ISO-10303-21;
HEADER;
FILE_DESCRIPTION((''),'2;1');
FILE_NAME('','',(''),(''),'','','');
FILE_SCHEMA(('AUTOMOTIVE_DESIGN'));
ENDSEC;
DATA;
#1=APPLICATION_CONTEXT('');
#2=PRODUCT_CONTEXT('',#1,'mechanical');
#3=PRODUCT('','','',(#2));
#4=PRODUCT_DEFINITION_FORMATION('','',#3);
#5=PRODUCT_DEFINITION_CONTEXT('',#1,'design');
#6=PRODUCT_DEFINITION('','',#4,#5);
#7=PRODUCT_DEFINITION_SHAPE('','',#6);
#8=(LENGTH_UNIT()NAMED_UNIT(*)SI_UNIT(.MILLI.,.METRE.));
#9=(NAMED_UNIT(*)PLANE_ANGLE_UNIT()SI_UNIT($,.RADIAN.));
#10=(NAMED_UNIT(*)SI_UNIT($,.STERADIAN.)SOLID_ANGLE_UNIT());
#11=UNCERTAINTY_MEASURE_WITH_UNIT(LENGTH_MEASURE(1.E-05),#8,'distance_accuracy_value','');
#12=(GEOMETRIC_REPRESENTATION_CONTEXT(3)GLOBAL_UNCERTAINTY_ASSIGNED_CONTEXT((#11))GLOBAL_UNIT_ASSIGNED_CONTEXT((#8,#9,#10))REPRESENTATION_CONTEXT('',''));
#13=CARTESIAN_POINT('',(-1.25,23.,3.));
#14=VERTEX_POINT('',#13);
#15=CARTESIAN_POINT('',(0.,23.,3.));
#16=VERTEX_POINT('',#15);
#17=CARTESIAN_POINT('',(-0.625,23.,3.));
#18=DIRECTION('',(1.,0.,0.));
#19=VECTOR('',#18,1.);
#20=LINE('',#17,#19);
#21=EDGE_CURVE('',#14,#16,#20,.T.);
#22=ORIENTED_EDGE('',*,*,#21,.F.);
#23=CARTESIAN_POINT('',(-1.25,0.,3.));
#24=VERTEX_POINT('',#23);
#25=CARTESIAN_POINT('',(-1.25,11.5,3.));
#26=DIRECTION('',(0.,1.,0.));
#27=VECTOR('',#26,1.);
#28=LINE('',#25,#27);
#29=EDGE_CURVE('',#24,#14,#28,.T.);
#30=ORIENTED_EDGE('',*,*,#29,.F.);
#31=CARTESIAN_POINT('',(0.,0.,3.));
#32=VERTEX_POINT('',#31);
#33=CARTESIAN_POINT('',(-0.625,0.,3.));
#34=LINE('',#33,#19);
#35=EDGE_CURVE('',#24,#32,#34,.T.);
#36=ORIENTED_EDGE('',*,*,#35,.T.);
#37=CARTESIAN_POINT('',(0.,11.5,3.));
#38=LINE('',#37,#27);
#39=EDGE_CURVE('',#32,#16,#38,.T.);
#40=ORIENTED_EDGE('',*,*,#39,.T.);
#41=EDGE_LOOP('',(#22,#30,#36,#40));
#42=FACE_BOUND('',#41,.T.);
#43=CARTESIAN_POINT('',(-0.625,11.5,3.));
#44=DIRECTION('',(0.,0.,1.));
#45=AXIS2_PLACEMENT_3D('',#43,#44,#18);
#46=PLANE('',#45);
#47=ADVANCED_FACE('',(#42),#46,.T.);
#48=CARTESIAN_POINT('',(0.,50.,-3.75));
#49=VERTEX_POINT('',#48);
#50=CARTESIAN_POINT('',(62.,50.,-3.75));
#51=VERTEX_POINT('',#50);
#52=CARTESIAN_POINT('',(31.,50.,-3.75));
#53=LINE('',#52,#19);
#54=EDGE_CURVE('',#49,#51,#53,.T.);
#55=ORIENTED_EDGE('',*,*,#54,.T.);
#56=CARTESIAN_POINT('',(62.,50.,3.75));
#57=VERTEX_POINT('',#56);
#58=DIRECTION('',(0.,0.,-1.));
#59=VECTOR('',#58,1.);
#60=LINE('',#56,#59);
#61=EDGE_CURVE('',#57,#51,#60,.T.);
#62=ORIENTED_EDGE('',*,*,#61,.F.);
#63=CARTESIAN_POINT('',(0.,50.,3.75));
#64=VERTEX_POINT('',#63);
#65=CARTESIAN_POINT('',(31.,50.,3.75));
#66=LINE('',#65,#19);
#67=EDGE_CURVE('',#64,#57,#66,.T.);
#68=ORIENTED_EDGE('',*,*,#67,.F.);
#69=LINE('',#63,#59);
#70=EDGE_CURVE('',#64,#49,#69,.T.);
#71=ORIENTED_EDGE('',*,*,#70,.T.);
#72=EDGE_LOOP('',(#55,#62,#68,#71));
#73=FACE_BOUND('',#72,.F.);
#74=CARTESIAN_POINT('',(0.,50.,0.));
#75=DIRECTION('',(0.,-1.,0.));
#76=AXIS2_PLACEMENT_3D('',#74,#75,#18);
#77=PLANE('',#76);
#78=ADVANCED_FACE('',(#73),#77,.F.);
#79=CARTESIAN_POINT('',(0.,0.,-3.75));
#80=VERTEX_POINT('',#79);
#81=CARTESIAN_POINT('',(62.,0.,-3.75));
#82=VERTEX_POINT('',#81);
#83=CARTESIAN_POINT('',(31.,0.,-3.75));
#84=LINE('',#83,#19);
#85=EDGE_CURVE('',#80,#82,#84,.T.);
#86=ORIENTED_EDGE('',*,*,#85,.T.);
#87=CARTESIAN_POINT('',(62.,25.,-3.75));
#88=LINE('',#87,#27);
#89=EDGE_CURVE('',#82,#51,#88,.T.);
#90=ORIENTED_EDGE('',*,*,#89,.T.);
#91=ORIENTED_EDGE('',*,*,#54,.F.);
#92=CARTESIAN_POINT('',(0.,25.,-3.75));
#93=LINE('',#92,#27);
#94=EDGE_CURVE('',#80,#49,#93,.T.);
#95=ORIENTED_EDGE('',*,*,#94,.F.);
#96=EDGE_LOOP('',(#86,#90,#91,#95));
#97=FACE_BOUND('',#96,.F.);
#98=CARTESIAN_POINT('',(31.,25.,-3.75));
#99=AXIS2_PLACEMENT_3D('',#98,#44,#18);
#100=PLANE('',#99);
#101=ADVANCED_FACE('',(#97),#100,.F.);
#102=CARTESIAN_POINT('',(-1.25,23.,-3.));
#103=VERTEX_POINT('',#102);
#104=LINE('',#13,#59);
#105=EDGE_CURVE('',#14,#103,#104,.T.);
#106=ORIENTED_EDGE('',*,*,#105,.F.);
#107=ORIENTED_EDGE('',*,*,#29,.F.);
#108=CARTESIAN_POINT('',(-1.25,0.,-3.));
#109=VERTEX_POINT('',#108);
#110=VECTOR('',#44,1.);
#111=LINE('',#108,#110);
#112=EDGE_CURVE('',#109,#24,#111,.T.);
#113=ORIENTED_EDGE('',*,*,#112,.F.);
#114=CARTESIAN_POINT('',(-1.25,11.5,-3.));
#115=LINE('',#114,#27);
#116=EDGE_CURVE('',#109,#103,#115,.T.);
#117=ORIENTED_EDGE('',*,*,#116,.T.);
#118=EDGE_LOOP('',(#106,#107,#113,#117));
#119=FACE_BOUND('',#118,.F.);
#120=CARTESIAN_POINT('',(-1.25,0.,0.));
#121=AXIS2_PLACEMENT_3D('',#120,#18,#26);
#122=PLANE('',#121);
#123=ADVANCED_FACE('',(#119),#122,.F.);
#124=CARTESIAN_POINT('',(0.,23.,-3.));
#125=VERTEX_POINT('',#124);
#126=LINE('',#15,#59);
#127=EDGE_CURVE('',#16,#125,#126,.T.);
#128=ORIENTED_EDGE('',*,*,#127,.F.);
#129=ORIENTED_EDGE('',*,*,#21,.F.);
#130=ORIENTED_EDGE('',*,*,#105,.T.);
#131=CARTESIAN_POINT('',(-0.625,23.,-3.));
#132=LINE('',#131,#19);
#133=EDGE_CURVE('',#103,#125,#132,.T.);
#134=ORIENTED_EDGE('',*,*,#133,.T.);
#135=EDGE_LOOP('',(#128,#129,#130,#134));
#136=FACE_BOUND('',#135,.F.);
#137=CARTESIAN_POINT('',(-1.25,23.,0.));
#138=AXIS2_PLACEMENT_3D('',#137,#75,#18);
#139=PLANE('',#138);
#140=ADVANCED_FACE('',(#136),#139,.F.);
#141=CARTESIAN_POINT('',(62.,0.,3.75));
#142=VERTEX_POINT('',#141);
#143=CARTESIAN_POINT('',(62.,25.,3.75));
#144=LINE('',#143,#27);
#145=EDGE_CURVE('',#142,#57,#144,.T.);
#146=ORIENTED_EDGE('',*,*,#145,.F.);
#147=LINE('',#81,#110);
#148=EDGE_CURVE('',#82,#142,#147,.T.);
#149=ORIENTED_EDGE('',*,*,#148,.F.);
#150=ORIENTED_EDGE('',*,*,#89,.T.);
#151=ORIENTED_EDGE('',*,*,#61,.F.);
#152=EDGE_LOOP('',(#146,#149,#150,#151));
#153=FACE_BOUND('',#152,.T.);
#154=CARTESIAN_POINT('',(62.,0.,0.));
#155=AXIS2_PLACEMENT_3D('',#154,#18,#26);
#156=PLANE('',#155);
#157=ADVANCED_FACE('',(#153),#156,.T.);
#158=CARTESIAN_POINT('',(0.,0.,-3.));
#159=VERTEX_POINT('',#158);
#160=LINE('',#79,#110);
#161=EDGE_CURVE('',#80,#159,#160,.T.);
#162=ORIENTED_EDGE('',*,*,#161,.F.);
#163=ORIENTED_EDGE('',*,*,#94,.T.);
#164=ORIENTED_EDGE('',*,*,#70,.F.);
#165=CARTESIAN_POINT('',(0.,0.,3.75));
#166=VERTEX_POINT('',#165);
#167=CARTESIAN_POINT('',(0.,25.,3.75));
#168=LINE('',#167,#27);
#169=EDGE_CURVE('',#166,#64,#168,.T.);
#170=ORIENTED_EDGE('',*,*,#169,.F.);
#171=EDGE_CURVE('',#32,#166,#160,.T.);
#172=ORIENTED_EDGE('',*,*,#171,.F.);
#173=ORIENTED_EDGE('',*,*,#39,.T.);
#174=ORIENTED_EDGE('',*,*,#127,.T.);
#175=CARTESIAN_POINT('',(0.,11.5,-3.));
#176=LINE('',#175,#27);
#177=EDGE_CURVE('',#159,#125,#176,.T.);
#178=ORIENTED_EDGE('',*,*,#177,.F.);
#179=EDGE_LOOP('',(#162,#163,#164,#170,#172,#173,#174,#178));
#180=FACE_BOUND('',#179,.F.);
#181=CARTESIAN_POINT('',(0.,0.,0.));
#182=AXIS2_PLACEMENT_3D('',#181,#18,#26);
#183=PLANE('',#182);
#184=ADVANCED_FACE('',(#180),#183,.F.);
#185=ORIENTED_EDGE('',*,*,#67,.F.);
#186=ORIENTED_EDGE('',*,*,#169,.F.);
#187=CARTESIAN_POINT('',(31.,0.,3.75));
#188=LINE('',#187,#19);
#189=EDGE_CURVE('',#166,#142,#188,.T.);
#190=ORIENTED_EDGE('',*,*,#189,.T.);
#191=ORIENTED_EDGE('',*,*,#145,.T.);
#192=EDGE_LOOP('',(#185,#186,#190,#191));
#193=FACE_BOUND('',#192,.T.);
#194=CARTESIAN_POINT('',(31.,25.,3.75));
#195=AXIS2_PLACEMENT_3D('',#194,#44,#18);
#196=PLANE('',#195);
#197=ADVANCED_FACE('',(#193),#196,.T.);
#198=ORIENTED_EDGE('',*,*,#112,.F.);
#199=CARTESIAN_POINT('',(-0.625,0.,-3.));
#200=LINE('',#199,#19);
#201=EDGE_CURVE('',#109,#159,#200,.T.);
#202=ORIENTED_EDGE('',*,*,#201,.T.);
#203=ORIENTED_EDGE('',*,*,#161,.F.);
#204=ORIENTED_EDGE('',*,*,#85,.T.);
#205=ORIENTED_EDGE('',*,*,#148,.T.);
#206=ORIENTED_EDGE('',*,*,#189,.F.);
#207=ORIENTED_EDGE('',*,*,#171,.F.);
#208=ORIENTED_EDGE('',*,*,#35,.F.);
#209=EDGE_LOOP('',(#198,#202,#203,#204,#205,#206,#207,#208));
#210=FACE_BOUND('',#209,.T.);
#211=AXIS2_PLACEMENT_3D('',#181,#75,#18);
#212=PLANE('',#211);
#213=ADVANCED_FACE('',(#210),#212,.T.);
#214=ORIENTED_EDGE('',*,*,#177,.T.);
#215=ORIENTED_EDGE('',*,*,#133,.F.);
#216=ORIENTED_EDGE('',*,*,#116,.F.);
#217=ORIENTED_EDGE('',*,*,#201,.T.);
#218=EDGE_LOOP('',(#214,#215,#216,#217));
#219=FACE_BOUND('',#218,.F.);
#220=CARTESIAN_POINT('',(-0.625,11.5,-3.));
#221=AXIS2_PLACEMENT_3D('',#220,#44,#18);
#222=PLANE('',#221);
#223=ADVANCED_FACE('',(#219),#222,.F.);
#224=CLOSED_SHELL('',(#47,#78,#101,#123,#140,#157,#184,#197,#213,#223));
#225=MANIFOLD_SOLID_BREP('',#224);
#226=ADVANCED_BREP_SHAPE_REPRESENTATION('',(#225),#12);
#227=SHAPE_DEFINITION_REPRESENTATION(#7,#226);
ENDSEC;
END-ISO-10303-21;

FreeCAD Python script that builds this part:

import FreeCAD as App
import Part
import Sketcher
from FreeCAD import Vector
Q = App.Units.Quantity


def add_polygon(sketch, points):
    """Adds a closed chain of lines whose ends are joined by coincident constraints."""
    first, n = sketch.GeometryCount, len(points)
    for a, b in zip(points, points[1:] + points[:1]):
        sketch.addGeometry(Part.LineSegment(App.Vector(*a, 0), App.Vector(*b, 0)), False)
    for i in range(n):
        sketch.addConstraint(Sketcher.Constraint("Coincident", first + i, 2, first + (i + 1) % n, 1))

doc = App.newDocument("Part")
params = doc.addObject("Spreadsheet::Sheet", "Params")
for row, (alias, value) in enumerate([
    ("sketch1_width", "62 mm"),
    ("sketch1_height", "50 mm"),
    ("pad1_length", "7.5 mm"),
    ("sketch2_height", "23 mm"),
    ("sketch2_width", "1.25 mm"),
    ("pad2_length", "6 mm"),
], start=1):
    params.set(f"A{row}", alias)
    params.set(f"B{row}", "=" + value)
    params.setAlias(f"B{row}", alias)

body = doc.addObject("PartDesign::Body", "Body")

# Sketch on XY plane
sketch1 = doc.addObject("Sketcher::SketchObject", "Sketch")
body.addObject(sketch1)
sketch1.AttachmentSupport = (doc.XY_Plane, [""])
sketch1.MapMode = "FlatFace"
add_polygon(sketch1, [(0, 50), (0, 0), (62, 0), (62, 50)])  # lines 0-3
sketch1.addConstraint([
    Sketcher.Constraint("Vertical", 0),
    Sketcher.Constraint("Horizontal", 1),
    Sketcher.Constraint("Vertical", 2),
    Sketcher.Constraint("Horizontal", 3),
    Sketcher.Constraint("Coincident", 0, 2, -1, 1),
    Sketcher.Constraint("DistanceX", 1, 1, 1, 2, Q("62 mm")),
    Sketcher.Constraint("DistanceY", 0, 2, 0, 1, Q("50 mm")),
])
sketch1.setExpression("Constraints[9]", "Params.sketch1_width")
sketch1.setExpression("Constraints[10]", "Params.sketch1_height")
pad1 = doc.addObject("PartDesign::Pad", "Pad")
body.addObject(pad1)
pad1.Profile = sketch1
pad1.setExpression("Length", "Params.pad1_length")
pad1.Midplane = True

# Sketch on XY plane
sketch2 = doc.addObject("Sketcher::SketchObject", "Sketch001")
body.addObject(sketch2)
sketch2.AttachmentSupport = (doc.XY_Plane, [""])
sketch2.MapMode = "FlatFace"
add_polygon(sketch2, [(-1.2, 23), (-1.2, 0), (0, 0), (0, 23)])  # lines 0-3
sketch2.addConstraint([
    Sketcher.Constraint("Vertical", 0),
    Sketcher.Constraint("Horizontal", 1),
    Sketcher.Constraint("Vertical", 2),
    Sketcher.Constraint("Horizontal", 3),
    Sketcher.Constraint("Coincident", 1, 2, -1, 1),
    Sketcher.Constraint("DistanceY", 0, 2, 0, 1, Q("23 mm")),
    Sketcher.Constraint("DistanceX", 1, 1, 1, 2, Q("1.25 mm")),
])
sketch2.setExpression("Constraints[9]", "Params.sketch2_height")
sketch2.setExpression("Constraints[10]", "Params.sketch2_width")
pad2 = doc.addObject("PartDesign::Pad", "Pad001")
body.addObject(pad2)
pad2.Profile = sketch2
pad2.setExpression("Length", "Params.pad2_length")
pad2.Midplane = True

doc.recompute()
